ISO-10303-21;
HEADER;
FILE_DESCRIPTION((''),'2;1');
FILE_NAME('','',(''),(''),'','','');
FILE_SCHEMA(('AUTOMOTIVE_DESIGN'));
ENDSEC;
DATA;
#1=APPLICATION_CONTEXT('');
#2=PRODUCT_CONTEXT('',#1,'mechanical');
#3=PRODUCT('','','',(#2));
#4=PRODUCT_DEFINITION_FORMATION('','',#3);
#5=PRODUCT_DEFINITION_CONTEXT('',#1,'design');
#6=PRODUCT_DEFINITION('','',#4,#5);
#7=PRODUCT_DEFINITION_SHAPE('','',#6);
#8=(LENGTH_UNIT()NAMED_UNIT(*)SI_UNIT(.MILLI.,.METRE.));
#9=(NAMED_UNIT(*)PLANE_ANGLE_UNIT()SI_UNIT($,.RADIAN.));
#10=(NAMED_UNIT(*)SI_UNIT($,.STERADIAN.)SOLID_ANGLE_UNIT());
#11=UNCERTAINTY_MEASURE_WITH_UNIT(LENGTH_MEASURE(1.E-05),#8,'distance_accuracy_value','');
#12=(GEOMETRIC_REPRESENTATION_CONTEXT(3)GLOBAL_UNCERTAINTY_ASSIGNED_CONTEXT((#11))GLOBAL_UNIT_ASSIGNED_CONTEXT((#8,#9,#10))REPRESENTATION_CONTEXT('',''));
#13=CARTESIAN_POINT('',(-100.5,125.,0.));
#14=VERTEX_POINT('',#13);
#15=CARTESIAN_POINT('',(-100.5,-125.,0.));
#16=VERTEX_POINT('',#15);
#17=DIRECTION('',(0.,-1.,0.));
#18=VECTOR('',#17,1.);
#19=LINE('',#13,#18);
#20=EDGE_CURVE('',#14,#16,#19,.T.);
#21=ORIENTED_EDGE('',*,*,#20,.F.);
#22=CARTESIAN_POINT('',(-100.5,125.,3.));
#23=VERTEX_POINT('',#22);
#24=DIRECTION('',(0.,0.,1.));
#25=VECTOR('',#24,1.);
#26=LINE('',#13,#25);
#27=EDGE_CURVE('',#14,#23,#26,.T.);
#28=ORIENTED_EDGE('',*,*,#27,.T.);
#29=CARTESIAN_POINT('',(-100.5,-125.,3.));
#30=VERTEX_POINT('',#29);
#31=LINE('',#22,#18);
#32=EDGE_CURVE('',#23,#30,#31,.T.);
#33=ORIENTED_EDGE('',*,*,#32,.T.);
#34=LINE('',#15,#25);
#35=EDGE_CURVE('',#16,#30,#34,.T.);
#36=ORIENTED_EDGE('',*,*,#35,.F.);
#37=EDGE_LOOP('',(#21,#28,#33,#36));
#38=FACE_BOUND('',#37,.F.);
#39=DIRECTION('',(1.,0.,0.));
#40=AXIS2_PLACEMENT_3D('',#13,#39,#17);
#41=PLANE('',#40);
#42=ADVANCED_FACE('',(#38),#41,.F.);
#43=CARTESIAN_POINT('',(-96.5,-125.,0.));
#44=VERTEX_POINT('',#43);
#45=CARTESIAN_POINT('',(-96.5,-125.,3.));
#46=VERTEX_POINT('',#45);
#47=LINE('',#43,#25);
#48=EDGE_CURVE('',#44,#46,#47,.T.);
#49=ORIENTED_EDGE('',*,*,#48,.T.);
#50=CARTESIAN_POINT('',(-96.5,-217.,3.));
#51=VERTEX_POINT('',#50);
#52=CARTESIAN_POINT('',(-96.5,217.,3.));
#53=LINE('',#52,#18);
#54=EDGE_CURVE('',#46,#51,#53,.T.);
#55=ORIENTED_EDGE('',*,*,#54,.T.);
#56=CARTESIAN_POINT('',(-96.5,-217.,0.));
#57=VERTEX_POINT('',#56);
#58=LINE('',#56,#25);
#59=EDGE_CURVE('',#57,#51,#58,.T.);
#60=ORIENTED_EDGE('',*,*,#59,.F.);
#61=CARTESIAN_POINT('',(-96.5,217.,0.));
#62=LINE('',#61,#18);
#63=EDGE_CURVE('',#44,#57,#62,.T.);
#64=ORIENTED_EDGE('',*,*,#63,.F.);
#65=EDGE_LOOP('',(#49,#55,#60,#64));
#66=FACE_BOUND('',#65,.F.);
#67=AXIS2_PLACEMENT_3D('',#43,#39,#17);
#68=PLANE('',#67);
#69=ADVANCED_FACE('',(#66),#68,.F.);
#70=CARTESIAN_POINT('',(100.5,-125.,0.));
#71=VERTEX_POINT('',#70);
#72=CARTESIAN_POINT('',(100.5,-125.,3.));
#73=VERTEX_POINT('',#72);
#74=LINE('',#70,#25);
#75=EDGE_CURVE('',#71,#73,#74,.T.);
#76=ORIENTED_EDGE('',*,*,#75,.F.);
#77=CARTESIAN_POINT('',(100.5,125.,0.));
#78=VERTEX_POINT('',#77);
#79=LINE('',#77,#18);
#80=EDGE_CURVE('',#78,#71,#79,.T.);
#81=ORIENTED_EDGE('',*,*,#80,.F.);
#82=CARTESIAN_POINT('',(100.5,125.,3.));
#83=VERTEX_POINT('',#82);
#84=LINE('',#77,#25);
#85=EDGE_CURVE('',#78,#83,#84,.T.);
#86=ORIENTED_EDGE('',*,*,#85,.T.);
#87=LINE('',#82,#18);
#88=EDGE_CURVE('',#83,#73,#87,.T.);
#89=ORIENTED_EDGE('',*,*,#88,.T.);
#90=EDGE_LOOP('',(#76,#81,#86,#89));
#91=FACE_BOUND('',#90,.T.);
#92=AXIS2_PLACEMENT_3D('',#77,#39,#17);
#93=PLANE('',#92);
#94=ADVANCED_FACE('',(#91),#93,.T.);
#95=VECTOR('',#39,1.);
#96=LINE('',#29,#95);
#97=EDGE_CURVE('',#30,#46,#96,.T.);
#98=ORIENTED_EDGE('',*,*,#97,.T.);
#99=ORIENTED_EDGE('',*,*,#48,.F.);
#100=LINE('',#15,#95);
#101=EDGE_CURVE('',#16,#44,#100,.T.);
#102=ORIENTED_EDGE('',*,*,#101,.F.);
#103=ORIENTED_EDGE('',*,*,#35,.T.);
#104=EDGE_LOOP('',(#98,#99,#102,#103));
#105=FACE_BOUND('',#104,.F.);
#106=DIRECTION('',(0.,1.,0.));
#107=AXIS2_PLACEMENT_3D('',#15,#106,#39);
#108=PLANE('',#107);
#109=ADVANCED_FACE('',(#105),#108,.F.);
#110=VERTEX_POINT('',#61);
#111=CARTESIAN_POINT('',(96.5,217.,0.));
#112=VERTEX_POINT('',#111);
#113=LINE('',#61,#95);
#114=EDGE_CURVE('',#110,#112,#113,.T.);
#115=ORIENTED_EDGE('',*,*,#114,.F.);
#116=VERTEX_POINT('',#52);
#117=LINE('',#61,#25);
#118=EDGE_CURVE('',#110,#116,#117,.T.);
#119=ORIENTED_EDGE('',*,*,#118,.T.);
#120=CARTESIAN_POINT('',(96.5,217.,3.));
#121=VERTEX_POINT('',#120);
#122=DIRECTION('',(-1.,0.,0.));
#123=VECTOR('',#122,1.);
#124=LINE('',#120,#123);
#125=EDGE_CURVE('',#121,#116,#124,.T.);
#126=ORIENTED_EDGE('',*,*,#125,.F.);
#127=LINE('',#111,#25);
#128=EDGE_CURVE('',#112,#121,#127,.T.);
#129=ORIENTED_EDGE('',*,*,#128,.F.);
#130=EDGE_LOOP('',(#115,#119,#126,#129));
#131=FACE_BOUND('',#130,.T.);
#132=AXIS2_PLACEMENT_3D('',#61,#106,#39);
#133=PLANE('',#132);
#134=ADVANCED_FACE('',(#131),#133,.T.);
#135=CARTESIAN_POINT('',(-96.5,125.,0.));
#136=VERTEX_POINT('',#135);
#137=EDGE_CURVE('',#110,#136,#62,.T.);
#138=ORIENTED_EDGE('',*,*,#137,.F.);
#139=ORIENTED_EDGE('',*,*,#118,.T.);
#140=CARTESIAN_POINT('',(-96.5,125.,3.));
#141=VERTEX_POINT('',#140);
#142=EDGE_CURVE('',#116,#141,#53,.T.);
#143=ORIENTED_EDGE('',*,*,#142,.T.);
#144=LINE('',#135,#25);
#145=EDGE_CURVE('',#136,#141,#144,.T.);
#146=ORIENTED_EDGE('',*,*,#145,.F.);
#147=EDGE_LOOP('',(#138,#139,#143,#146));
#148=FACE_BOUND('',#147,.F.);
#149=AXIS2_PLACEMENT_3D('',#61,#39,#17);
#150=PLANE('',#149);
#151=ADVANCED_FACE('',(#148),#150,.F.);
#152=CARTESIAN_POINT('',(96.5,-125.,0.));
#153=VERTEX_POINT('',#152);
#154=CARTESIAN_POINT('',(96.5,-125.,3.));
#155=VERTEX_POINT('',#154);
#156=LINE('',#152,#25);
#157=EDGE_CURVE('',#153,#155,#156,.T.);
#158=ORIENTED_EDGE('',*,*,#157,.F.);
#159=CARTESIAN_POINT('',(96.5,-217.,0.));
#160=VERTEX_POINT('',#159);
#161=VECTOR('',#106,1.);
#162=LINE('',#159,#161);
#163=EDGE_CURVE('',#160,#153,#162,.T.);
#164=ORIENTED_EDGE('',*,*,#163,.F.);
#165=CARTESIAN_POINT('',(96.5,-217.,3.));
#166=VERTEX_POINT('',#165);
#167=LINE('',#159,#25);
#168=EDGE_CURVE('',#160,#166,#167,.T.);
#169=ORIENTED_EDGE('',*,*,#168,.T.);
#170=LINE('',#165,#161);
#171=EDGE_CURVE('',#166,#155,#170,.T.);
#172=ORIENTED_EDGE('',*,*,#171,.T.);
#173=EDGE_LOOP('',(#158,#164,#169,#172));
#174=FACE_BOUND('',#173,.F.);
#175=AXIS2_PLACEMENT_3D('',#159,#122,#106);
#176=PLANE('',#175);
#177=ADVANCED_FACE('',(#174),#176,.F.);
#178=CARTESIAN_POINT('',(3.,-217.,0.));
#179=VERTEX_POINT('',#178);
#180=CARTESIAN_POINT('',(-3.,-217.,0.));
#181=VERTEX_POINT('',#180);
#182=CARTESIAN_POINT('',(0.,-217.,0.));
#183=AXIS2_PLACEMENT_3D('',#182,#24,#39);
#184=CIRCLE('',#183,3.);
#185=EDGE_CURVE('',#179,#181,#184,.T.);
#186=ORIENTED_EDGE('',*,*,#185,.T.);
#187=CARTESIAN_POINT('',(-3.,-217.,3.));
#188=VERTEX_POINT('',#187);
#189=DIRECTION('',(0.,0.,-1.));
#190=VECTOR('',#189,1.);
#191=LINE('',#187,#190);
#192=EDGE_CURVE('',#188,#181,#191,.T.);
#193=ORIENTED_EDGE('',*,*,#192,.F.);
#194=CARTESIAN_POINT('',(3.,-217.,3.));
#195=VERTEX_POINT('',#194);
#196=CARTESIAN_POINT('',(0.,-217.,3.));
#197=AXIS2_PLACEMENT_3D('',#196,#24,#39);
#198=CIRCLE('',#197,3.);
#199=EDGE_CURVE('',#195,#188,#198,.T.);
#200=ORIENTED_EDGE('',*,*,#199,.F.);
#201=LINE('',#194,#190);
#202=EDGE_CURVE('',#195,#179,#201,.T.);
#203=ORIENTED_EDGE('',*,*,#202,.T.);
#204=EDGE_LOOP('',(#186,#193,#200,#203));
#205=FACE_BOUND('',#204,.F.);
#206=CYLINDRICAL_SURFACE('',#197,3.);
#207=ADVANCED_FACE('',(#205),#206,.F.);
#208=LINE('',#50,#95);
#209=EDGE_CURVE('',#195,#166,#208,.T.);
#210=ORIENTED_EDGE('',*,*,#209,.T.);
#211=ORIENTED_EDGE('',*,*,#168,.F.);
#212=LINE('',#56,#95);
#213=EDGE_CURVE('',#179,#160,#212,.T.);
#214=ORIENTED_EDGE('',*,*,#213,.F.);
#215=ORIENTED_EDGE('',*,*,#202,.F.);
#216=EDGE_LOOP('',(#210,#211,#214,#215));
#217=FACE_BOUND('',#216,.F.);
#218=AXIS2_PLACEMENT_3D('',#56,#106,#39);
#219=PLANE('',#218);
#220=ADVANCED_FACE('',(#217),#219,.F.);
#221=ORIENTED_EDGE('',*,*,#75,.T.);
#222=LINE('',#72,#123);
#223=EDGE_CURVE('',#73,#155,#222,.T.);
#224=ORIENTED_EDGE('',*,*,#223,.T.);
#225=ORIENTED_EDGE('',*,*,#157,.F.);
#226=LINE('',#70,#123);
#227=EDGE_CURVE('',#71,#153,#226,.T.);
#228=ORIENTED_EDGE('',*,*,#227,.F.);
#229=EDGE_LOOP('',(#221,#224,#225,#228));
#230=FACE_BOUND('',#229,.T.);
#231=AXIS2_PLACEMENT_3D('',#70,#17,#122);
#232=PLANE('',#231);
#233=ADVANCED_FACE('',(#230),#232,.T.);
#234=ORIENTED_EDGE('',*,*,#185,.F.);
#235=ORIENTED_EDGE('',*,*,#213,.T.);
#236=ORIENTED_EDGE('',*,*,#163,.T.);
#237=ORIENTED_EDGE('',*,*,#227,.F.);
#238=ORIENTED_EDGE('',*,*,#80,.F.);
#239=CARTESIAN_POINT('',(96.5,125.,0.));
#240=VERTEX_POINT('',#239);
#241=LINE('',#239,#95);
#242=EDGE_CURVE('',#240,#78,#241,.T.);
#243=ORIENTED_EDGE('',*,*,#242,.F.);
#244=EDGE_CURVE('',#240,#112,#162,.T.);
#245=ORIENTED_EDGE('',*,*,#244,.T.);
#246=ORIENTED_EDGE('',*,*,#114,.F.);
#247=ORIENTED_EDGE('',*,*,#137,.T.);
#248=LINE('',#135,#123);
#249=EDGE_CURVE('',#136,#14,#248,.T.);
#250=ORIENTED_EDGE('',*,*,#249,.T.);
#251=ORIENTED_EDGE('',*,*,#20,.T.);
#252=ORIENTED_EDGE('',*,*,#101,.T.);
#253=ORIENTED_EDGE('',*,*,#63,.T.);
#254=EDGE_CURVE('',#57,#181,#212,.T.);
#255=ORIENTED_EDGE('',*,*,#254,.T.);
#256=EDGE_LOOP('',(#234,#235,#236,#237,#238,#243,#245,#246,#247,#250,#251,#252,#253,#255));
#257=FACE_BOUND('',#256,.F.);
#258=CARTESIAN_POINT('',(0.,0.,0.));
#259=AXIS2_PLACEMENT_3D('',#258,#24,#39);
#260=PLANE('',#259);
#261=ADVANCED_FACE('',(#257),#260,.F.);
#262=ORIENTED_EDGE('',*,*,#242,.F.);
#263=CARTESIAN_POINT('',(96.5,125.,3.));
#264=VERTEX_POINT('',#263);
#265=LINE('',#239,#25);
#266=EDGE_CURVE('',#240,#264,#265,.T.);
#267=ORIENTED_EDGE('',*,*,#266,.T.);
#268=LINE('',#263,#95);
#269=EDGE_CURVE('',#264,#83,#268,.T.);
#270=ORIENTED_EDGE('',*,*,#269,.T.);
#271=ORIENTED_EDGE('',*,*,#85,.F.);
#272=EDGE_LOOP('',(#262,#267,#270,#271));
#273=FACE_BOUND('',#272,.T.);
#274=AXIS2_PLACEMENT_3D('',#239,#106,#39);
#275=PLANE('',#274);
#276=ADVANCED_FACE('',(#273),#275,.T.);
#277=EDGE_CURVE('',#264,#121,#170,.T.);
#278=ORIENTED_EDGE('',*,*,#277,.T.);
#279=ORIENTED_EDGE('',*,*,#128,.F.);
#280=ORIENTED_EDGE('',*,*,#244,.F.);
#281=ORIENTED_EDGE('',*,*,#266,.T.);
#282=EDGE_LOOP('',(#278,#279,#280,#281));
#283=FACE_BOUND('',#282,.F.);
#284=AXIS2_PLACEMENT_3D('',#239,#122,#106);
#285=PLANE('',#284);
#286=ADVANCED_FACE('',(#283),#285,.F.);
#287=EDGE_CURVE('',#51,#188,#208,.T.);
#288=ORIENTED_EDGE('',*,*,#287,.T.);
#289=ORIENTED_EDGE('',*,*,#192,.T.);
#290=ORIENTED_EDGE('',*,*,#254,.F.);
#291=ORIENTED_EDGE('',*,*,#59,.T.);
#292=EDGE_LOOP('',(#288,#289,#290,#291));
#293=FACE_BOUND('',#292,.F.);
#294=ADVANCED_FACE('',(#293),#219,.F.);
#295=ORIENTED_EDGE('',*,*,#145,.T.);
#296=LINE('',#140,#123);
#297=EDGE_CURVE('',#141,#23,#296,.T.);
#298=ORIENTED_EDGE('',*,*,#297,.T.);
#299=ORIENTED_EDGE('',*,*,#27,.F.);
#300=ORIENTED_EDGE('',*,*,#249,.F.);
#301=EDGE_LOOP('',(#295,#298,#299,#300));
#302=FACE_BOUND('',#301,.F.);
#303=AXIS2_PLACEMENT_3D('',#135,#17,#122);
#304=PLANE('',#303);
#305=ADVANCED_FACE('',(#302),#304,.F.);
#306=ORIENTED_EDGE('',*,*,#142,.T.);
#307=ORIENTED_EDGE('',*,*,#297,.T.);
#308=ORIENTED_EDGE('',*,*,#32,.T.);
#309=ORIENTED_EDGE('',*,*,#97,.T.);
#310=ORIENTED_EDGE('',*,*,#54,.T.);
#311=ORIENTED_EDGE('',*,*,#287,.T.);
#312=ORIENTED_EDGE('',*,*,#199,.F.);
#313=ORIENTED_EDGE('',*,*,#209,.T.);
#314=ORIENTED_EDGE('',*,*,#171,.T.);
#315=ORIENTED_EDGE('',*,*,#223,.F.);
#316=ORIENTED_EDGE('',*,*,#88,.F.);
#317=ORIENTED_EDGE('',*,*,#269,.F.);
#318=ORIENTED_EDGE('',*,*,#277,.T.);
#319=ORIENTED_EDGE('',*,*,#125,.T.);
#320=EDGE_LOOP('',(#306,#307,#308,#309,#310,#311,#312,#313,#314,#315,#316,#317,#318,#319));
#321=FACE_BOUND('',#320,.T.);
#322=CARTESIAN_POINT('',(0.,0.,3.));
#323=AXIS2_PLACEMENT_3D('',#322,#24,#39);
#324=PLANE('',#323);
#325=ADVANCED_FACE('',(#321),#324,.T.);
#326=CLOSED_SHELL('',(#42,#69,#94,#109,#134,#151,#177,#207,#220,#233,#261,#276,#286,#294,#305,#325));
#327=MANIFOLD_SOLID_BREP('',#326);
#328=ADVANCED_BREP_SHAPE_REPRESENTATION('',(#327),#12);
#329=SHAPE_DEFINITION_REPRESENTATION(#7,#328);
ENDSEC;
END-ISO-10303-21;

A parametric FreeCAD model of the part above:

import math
import FreeCAD as App
import Part
import Sketcher

V = App.Vector

doc = App.newDocument("Part")
body = doc.addObject("PartDesign::Body", "Body")

sketch1 = doc.addObject("Sketcher::SketchObject", "Sketch")
body.addObject(sketch1)
sketch1.AttachmentSupport = (doc.XY_Plane, [""])
sketch1.MapMode = "FlatFace"
sketch1.addGeometry(Part.LineSegment(V(-96.5, -125, 0), V(-96.5, -217, 0)), False)
sketch1.addGeometry(Part.LineSegment(V(-96.5, -217, 0), V(96.5, -217, 0)), False)
sketch1.addGeometry(Part.LineSegment(V(96.5, -217, 0), V(96.5, -125, 0)), False)
sketch1.addGeometry(Part.LineSegment(V(96.5, -125, 0), V(100.5, -125, 0)), False)
sketch1.addGeometry(Part.LineSegment(V(100.5, -125, 0), V(100.5, 125, 0)), False)
sketch1.addGeometry(Part.LineSegment(V(100.5, 125, 0), V(96.5, 125, 0)), False)
sketch1.addGeometry(Part.LineSegment(V(96.5, 125, 0), V(96.5, 217, 0)), False)
sketch1.addGeometry(Part.LineSegment(V(96.5, 217, 0), V(-96.5, 217, 0)), False)
sketch1.addGeometry(Part.LineSegment(V(-96.5, 217, 0), V(-96.5, 125, 0)), False)
sketch1.addGeometry(Part.LineSegment(V(-96.5, 125, 0), V(-100.5, 125, 0)), False)
sketch1.addGeometry(Part.LineSegment(V(-100.5, 125, 0), V(-100.5, -125, 0)), False)
sketch1.addGeometry(Part.LineSegment(V(-100.5, -125, 0), V(-96.5, -125, 0)), False)
sketch1.addConstraint(Sketcher.Constraint("Coincident", 0, 2, 1, 1))
sketch1.addConstraint(Sketcher.Constraint("Coincident", 1, 2, 2, 1))
sketch1.addConstraint(Sketcher.Constraint("Coincident", 2, 2, 3, 1))
sketch1.addConstraint(Sketcher.Constraint("Coincident", 3, 2, 4, 1))
sketch1.addConstraint(Sketcher.Constraint("Coincident", 4, 2, 5, 1))
sketch1.addConstraint(Sketcher.Constraint("Coincident", 5, 2, 6, 1))
sketch1.addConstraint(Sketcher.Constraint("Coincident", 6, 2, 7, 1))
sketch1.addConstraint(Sketcher.Constraint("Coincident", 7, 2, 8, 1))
sketch1.addConstraint(Sketcher.Constraint("Coincident", 8, 2, 9, 1))
sketch1.addConstraint(Sketcher.Constraint("Coincident", 9, 2, 10, 1))
sketch1.addConstraint(Sketcher.Constraint("Coincident", 10, 2, 11, 1))
sketch1.addConstraint(Sketcher.Constraint("Coincident", 11, 2, 0, 1))
sketch1.addConstraint(Sketcher.Constraint("Vertical", 0))
sketch1.addConstraint(Sketcher.Constraint("Horizontal", 1))
sketch1.addConstraint(Sketcher.Constraint("Vertical", 2))
sketch1.addConstraint(Sketcher.Constraint("Horizontal", 3))
sketch1.addConstraint(Sketcher.Constraint("Vertical", 4))
sketch1.addConstraint(Sketcher.Constraint("Horizontal", 5))
sketch1.addConstraint(Sketcher.Constraint("Vertical", 6))
sketch1.addConstraint(Sketcher.Constraint("Horizontal", 7))
sketch1.addConstraint(Sketcher.Constraint("Vertical", 8))
sketch1.addConstraint(Sketcher.Constraint("Horizontal", 9))
sketch1.addConstraint(Sketcher.Constraint("Vertical", 10))
sketch1.addConstraint(Sketcher.Constraint("Horizontal", 11))
sketch1.addConstraint(Sketcher.Constraint("Symmetric", 0, 2, 6, 2, -1, 1))
sketch1.addConstraint(Sketcher.Constraint("Symmetric", 2, 2, 8, 2, -1, 1))
sketch1.addConstraint(Sketcher.Constraint("Symmetric", 4, 2, 10, 2, -1, 1))
sketch1.addConstraint(Sketcher.Constraint("Symmetric", 5, 2, 8, 2, -2))
sketch1.addConstraint(Sketcher.Constraint("DistanceX", 1, 1, 1, 2, 193.0))
sketch1.addConstraint(Sketcher.Constraint("DistanceX", 3, 1, 3, 2, 4.0))
sketch1.addConstraint(Sketcher.Constraint("DistanceY", 4, 1, 4, 2, 250.0))
sketch1.addConstraint(Sketcher.Constraint("DistanceY", 1, 2, 6, 2, 434.0))
pad1 = doc.addObject("PartDesign::Pad", "Pad")
body.addObject(pad1)
pad1.Profile = sketch1
pad1.Length = 3

sketch2 = doc.addObject("Sketcher::SketchObject", "Sketch001")
body.addObject(sketch2)
sketch2.AttachmentSupport = (doc.XY_Plane, [""])
sketch2.MapMode = "FlatFace"
sketch2.AttachmentOffset = App.Placement(V(0, 0, 3), App.Rotation())
sketch2.addGeometry(Part.ArcOfCircle(Part.Circle(V(0, -217, 0), V(0, 0, 1), 3), math.radians(0), math.radians(180)), False)
sketch2.addGeometry(Part.LineSegment(V(-3, -217, 0), V(3, -217, 0)), False)
sketch2.addConstraint(Sketcher.Constraint("Coincident", 0, 1, 1, 2))
sketch2.addConstraint(Sketcher.Constraint("Coincident", 1, 1, 0, 2))
sketch2.addConstraint(Sketcher.Constraint("Horizontal", 1))
sketch2.addConstraint(Sketcher.Constraint("PointOnObject", 0, 3, -2))
sketch2.addConstraint(Sketcher.Constraint("Radius", 0, 3.0))
sketch2.addConstraint(Sketcher.Constraint("DistanceY", 0, 3, -1, 1, 217.0))
sketch2.addConstraint(Sketcher.Constraint("DistanceY", 0, 1, -1, 1, 217.0))
pocket1 = doc.addObject("PartDesign::Pocket", "Pocket")
body.addObject(pocket1)
pocket1.Profile = sketch2
pocket1.Length = 3

doc.recompute()
